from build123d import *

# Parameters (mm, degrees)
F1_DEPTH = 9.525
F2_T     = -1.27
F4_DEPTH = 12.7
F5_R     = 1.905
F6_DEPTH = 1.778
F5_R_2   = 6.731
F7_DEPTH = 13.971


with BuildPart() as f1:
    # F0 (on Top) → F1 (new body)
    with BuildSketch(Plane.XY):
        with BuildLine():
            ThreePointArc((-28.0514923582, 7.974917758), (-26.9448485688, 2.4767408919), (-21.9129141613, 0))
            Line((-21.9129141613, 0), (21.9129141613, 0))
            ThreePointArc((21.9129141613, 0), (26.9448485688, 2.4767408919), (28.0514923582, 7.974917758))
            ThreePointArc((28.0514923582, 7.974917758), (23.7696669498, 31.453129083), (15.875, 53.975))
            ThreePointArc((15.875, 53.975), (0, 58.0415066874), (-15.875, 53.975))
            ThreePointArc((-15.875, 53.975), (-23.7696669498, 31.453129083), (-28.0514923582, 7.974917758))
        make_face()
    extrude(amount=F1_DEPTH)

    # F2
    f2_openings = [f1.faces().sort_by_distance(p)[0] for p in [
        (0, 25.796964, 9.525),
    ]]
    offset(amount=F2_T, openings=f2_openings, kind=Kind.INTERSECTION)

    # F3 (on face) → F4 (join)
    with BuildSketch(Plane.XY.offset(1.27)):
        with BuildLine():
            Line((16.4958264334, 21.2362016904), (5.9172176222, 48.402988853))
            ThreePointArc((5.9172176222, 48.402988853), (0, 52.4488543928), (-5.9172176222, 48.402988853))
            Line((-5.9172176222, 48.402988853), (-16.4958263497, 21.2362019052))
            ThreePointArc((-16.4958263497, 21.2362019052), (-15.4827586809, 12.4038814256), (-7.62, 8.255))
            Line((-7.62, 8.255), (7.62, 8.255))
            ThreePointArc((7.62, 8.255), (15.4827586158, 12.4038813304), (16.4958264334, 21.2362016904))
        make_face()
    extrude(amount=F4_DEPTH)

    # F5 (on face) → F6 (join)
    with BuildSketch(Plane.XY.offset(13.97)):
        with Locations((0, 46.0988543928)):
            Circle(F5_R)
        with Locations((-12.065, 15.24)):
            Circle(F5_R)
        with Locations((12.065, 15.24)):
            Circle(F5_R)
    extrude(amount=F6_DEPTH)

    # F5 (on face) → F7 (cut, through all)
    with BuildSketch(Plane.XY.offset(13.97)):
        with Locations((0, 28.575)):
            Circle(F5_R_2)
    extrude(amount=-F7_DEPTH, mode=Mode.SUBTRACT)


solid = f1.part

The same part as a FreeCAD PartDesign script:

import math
import FreeCAD as App
import Part
import Sketcher

V = App.Vector
Q = App.Units.Quantity


def faces_at(feature, points):
    """Names of the faces that lie closest to the given points."""
    faces = feature.Shape.Faces
    near = lambda p: min(range(len(faces)), key=lambda i: faces[i].distToShape(Part.Vertex(*p))[0])
    return sorted({f"Face{near(p) + 1}" for p in points})

doc = App.newDocument("Part")
params = doc.addObject("Spreadsheet::Sheet", "Params")
for row, (alias, value) in enumerate([
    ("sketch1_radius", "6 in"),
    ("sketch1_radius2", "1.3 in"),
    ("sketch1_radius3", "0.25 in"),
    ("pad1_length", "0.375 in"),
    ("thickness_wall", "0.05 in"),
    ("sketch2_radius", "0.25 in"),
    ("sketch2_width", "0.6 in"),
    ("sketch2_radius2", "0.375 in"),
    ("pad2_length", "0.5 in"),
    ("sketch3_diameter", "0.15 in"),
    ("pad3_length", "0.07 in"),
    ("sketch4_diameter", "0.53 in"),
], start=1):
    params.set(f"A{row}", alias)
    params.set(f"B{row}", "=" + value)
    params.setAlias(f"B{row}", alias)

body = doc.addObject("PartDesign::Body", "Body")

# Sketch on XY plane
sketch1 = body.newObject("Sketcher::SketchObject", "Sketch")
sketch1.AttachmentSupport = (doc.getObject("XY_Plane"), [""])
sketch1.MapMode = "FlatFace"
sketch1.addGeometry(Part.ArcOfCircle(Part.Circle(V(-22, 6, 0), V(0, 0, 1), 6), math.radians(165), math.radians(270)), False)
sketch1.addGeometry(Part.LineSegment(V(-22, 0, 0), V(22, 0, 0)), False)
sketch1.addGeometry(Part.ArcOfCircle(Part.Circle(V(22, 6, 0), V(0, 0, 1), 6), math.radians(-90), math.radians(15)), False)
sketch1.addGeometry(Part.ArcOfCircle(Part.Circle(V(-124, -8, 0), V(0, 0, 1), 152), math.radians(5.84), math.radians(23.81)), False)
sketch1.addGeometry(Part.ArcOfCircle(Part.Circle(V(0, 25, 0), V(0, 0, 1), 33), math.radians(61), math.radians(119)), False)
sketch1.addGeometry(Part.ArcOfCircle(Part.Circle(V(124, -8, 0), V(0, 0, 1), 152), math.radians(156.19), math.radians(174.16)), False)
sketch1.addConstraint(Sketcher.Constraint("Tangent", 0, 2, 1, 1))
sketch1.addConstraint(Sketcher.Constraint("Tangent", 1, 2, 2, 1))
sketch1.addConstraint(Sketcher.Constraint("Coincident", 2, 2, 3, 1))
sketch1.addConstraint(Sketcher.Constraint("Coincident", 3, 2, 4, 1))
sketch1.addConstraint(Sketcher.Constraint("Coincident", 4, 2, 5, 1))
sketch1.addConstraint(Sketcher.Constraint("Coincident", 5, 2, 0, 1))
sketch1.addConstraint(Sketcher.Constraint("Horizontal", 1))
sketch1.addConstraint(Sketcher.Constraint("Equal", 0, 2))
sketch1.addConstraint(Sketcher.Constraint("Equal", 3, 5))
sketch1.addConstraint(Sketcher.Constraint("Symmetric", 0, 2, 1, 2, -1, 1))
sketch1.addConstraint(Sketcher.Constraint("Symmetric", 3, 3, 5, 3, -2))
sketch1.addConstraint(Sketcher.Constraint("PointOnObject", 4, 3, -2))
sketch1.addConstraint(Sketcher.Constraint("Radius", 3, Q("6 in")))
sketch1.addConstraint(Sketcher.Constraint("Radius", 4, Q("1.3 in")))
sketch1.addConstraint(Sketcher.Constraint("Radius", 0, Q("0.25 in")))
sketch1.addConstraint(Sketcher.Constraint("DistanceX", 4, 2, 3, 2, Q("1.25 in")))
sketch1.addConstraint(Sketcher.Constraint("DistanceY", -1, 1, 3, 2, Q("2.125 in")))
sketch1.addConstraint(Sketcher.Constraint("DistanceX", 1, 1, 1, 2, Q("43.825828 mm")))
sketch1.addConstraint(Sketcher.Constraint("DistanceX", 3, 3, -1, 1, Q("123.55621 mm")))
sketch1.setExpression("Constraints[12]", "Params.sketch1_radius")
sketch1.setExpression("Constraints[13]", "Params.sketch1_radius2")
sketch1.setExpression("Constraints[14]", "Params.sketch1_radius3")
pad1 = body.newObject("PartDesign::Pad", "Pad")
pad1.Profile = sketch1
pad1.setExpression("Length", "Params.pad1_length")
doc.recompute()

thickness = body.newObject("PartDesign::Thickness", "Thickness")
thickness.Base = (pad1, faces_at(pad1, [(0, 29.021, 9.525)]))
thickness.setExpression("Value", "Params.thickness_wall")
thickness.Reversed = True
thickness.Join = "Intersection"

# Sketch on XY plane
sketch2 = body.newObject("Sketcher::SketchObject", "Sketch001")
sketch2.AttachmentSupport = (doc.getObject("XY_Plane"), [""])
sketch2.MapMode = "FlatFace"
sketch2.AttachmentOffset = App.Placement(V(0, 0, 0.05 * 25.4), App.Rotation())
sketch2.addGeometry(Part.LineSegment(V(16, 21, 0), V(6, 48, 0)), False)
sketch2.addGeometry(Part.ArcOfCircle(Part.Circle(V(0, 46, 0), V(0, 0, 1), 6), math.radians(21), math.radians(159)), False)
sketch2.addGeometry(Part.LineSegment(V(-6, 48, 0), V(-16, 21, 0)), False)
sketch2.addGeometry(Part.ArcOfCircle(Part.Circle(V(-8, 18, 0), V(0, 0, 1), 10), math.radians(159), math.radians(270)), False)
sketch2.addGeometry(Part.LineSegment(V(-8, 8, 0), V(8, 8, 0)), False)
sketch2.addGeometry(Part.ArcOfCircle(Part.Circle(V(8, 18, 0), V(0, 0, 1), 10), math.radians(-90), math.radians(21)), False)
sketch2.addConstraint(Sketcher.Constraint("Tangent", 0, 2, 1, 1))
sketch2.addConstraint(Sketcher.Constraint("Tangent", 1, 2, 2, 1))
sketch2.addConstraint(Sketcher.Constraint("Tangent", 2, 2, 3, 1))
sketch2.addConstraint(Sketcher.Constraint("Tangent", 3, 2, 4, 1))
sketch2.addConstraint(Sketcher.Constraint("Tangent", 4, 2, 5, 1))
sketch2.addConstraint(Sketcher.Constraint("Tangent", 5, 2, 0, 1))
sketch2.addConstraint(Sketcher.Constraint("Horizontal", 4))
sketch2.addConstraint(Sketcher.Constraint("Equal", 3, 5))
sketch2.addConstraint(Sketcher.Constraint("Symmetric", 0, 2, 1, 2, -2))
sketch2.addConstraint(Sketcher.Constraint("Radius", 1, Q("0.25 in")))
sketch2.addConstraint(Sketcher.Constraint("DistanceX", 4, 1, 4, 2, Q("0.6 in")))
sketch2.addConstraint(Sketcher.Constraint("Radius", 3, Q("0.375 in")))
sketch2.addConstraint(Sketcher.Constraint("DistanceY", -1, 1, 3, 3, Q("0.7 in")))
sketch2.addConstraint(Sketcher.Constraint("DistanceY", -1, 1, 2, 2, Q("21.236202 mm")))
sketch2.setExpression("Constraints[9]", "Params.sketch2_radius")
sketch2.setExpression("Constraints[10]", "Params.sketch2_width")
sketch2.setExpression("Constraints[11]", "Params.sketch2_radius2")
pad2 = body.newObject("PartDesign::Pad", "Pad001")
pad2.Profile = sketch2
pad2.setExpression("Length", "Params.pad2_length")

# Sketch on XY plane
sketch3 = body.newObject("Sketcher::SketchObject", "Sketch002")
sketch3.AttachmentSupport = (doc.getObject("XY_Plane"), [""])
sketch3.MapMode = "FlatFace"
sketch3.AttachmentOffset = App.Placement(V(0, 0, 0.55 * 25.4), App.Rotation())
sketch3.addGeometry(Part.Circle(V(0, 46.1, 0), V(0, 0, 1), 1.9), False)
sketch3.addGeometry(Part.Circle(V(-12.1, 15.2, 0), V(0, 0, 1), 1.9), False)
sketch3.addGeometry(Part.Circle(V(12.1, 15.2, 0), V(0, 0, 1), 1.9), False)
sketch3.addConstraint(Sketcher.Constraint("Equal", 0, 1))
sketch3.addConstraint(Sketcher.Constraint("Equal", 1, 2))
sketch3.addConstraint(Sketcher.Constraint("Symmetric", 1, 3, 2, 3, -2))
sketch3.addConstraint(Sketcher.Constraint("PointOnObject", 0, 3, -2))
sketch3.addConstraint(Sketcher.Constraint("Diameter", 0, Q("0.15 in")))
sketch3.addConstraint(Sketcher.Constraint("DistanceY", -1, 1, 1, 3, Q("0.6 in")))
sketch3.addConstraint(Sketcher.Constraint("DistanceX", 1, 3, 2, 3, Q("0.95 in")))
sketch3.addConstraint(Sketcher.Constraint("DistanceY", -1, 1, 0, 3, Q("46.098854 mm")))
sketch3.setExpression("Constraints[4]", "Params.sketch3_diameter")
pad3 = body.newObject("PartDesign::Pad", "Pad002")
pad3.Profile = sketch3
pad3.setExpression("Length", "Params.pad3_length")

# Sketch on XY plane
sketch4 = body.newObject("Sketcher::SketchObject", "Sketch003")
sketch4.AttachmentSupport = (doc.getObject("XY_Plane"), [""])
sketch4.MapMode = "FlatFace"
sketch4.AttachmentOffset = App.Placement(V(0, 0, 0.55 * 25.4), App.Rotation())
sketch4.addGeometry(Part.Circle(V(0, 29, 0), V(0, 0, 1), 7), False)
sketch4.addConstraint(Sketcher.Constraint("PointOnObject", 0, 3, -2))
sketch4.addConstraint(Sketcher.Constraint("Diameter", 0, Q("0.53 in")))
sketch4.addConstraint(Sketcher.Constraint("DistanceY", -1, 1, 0, 3, Q("1.125 in")))
sketch4.setExpression("Constraints[1]", "Params.sketch4_diameter")
pocket1 = body.newObject("PartDesign::Pocket", "Pocket")
pocket1.Profile = sketch4
pocket1.Type = "ThroughAll"

doc.recompute()
